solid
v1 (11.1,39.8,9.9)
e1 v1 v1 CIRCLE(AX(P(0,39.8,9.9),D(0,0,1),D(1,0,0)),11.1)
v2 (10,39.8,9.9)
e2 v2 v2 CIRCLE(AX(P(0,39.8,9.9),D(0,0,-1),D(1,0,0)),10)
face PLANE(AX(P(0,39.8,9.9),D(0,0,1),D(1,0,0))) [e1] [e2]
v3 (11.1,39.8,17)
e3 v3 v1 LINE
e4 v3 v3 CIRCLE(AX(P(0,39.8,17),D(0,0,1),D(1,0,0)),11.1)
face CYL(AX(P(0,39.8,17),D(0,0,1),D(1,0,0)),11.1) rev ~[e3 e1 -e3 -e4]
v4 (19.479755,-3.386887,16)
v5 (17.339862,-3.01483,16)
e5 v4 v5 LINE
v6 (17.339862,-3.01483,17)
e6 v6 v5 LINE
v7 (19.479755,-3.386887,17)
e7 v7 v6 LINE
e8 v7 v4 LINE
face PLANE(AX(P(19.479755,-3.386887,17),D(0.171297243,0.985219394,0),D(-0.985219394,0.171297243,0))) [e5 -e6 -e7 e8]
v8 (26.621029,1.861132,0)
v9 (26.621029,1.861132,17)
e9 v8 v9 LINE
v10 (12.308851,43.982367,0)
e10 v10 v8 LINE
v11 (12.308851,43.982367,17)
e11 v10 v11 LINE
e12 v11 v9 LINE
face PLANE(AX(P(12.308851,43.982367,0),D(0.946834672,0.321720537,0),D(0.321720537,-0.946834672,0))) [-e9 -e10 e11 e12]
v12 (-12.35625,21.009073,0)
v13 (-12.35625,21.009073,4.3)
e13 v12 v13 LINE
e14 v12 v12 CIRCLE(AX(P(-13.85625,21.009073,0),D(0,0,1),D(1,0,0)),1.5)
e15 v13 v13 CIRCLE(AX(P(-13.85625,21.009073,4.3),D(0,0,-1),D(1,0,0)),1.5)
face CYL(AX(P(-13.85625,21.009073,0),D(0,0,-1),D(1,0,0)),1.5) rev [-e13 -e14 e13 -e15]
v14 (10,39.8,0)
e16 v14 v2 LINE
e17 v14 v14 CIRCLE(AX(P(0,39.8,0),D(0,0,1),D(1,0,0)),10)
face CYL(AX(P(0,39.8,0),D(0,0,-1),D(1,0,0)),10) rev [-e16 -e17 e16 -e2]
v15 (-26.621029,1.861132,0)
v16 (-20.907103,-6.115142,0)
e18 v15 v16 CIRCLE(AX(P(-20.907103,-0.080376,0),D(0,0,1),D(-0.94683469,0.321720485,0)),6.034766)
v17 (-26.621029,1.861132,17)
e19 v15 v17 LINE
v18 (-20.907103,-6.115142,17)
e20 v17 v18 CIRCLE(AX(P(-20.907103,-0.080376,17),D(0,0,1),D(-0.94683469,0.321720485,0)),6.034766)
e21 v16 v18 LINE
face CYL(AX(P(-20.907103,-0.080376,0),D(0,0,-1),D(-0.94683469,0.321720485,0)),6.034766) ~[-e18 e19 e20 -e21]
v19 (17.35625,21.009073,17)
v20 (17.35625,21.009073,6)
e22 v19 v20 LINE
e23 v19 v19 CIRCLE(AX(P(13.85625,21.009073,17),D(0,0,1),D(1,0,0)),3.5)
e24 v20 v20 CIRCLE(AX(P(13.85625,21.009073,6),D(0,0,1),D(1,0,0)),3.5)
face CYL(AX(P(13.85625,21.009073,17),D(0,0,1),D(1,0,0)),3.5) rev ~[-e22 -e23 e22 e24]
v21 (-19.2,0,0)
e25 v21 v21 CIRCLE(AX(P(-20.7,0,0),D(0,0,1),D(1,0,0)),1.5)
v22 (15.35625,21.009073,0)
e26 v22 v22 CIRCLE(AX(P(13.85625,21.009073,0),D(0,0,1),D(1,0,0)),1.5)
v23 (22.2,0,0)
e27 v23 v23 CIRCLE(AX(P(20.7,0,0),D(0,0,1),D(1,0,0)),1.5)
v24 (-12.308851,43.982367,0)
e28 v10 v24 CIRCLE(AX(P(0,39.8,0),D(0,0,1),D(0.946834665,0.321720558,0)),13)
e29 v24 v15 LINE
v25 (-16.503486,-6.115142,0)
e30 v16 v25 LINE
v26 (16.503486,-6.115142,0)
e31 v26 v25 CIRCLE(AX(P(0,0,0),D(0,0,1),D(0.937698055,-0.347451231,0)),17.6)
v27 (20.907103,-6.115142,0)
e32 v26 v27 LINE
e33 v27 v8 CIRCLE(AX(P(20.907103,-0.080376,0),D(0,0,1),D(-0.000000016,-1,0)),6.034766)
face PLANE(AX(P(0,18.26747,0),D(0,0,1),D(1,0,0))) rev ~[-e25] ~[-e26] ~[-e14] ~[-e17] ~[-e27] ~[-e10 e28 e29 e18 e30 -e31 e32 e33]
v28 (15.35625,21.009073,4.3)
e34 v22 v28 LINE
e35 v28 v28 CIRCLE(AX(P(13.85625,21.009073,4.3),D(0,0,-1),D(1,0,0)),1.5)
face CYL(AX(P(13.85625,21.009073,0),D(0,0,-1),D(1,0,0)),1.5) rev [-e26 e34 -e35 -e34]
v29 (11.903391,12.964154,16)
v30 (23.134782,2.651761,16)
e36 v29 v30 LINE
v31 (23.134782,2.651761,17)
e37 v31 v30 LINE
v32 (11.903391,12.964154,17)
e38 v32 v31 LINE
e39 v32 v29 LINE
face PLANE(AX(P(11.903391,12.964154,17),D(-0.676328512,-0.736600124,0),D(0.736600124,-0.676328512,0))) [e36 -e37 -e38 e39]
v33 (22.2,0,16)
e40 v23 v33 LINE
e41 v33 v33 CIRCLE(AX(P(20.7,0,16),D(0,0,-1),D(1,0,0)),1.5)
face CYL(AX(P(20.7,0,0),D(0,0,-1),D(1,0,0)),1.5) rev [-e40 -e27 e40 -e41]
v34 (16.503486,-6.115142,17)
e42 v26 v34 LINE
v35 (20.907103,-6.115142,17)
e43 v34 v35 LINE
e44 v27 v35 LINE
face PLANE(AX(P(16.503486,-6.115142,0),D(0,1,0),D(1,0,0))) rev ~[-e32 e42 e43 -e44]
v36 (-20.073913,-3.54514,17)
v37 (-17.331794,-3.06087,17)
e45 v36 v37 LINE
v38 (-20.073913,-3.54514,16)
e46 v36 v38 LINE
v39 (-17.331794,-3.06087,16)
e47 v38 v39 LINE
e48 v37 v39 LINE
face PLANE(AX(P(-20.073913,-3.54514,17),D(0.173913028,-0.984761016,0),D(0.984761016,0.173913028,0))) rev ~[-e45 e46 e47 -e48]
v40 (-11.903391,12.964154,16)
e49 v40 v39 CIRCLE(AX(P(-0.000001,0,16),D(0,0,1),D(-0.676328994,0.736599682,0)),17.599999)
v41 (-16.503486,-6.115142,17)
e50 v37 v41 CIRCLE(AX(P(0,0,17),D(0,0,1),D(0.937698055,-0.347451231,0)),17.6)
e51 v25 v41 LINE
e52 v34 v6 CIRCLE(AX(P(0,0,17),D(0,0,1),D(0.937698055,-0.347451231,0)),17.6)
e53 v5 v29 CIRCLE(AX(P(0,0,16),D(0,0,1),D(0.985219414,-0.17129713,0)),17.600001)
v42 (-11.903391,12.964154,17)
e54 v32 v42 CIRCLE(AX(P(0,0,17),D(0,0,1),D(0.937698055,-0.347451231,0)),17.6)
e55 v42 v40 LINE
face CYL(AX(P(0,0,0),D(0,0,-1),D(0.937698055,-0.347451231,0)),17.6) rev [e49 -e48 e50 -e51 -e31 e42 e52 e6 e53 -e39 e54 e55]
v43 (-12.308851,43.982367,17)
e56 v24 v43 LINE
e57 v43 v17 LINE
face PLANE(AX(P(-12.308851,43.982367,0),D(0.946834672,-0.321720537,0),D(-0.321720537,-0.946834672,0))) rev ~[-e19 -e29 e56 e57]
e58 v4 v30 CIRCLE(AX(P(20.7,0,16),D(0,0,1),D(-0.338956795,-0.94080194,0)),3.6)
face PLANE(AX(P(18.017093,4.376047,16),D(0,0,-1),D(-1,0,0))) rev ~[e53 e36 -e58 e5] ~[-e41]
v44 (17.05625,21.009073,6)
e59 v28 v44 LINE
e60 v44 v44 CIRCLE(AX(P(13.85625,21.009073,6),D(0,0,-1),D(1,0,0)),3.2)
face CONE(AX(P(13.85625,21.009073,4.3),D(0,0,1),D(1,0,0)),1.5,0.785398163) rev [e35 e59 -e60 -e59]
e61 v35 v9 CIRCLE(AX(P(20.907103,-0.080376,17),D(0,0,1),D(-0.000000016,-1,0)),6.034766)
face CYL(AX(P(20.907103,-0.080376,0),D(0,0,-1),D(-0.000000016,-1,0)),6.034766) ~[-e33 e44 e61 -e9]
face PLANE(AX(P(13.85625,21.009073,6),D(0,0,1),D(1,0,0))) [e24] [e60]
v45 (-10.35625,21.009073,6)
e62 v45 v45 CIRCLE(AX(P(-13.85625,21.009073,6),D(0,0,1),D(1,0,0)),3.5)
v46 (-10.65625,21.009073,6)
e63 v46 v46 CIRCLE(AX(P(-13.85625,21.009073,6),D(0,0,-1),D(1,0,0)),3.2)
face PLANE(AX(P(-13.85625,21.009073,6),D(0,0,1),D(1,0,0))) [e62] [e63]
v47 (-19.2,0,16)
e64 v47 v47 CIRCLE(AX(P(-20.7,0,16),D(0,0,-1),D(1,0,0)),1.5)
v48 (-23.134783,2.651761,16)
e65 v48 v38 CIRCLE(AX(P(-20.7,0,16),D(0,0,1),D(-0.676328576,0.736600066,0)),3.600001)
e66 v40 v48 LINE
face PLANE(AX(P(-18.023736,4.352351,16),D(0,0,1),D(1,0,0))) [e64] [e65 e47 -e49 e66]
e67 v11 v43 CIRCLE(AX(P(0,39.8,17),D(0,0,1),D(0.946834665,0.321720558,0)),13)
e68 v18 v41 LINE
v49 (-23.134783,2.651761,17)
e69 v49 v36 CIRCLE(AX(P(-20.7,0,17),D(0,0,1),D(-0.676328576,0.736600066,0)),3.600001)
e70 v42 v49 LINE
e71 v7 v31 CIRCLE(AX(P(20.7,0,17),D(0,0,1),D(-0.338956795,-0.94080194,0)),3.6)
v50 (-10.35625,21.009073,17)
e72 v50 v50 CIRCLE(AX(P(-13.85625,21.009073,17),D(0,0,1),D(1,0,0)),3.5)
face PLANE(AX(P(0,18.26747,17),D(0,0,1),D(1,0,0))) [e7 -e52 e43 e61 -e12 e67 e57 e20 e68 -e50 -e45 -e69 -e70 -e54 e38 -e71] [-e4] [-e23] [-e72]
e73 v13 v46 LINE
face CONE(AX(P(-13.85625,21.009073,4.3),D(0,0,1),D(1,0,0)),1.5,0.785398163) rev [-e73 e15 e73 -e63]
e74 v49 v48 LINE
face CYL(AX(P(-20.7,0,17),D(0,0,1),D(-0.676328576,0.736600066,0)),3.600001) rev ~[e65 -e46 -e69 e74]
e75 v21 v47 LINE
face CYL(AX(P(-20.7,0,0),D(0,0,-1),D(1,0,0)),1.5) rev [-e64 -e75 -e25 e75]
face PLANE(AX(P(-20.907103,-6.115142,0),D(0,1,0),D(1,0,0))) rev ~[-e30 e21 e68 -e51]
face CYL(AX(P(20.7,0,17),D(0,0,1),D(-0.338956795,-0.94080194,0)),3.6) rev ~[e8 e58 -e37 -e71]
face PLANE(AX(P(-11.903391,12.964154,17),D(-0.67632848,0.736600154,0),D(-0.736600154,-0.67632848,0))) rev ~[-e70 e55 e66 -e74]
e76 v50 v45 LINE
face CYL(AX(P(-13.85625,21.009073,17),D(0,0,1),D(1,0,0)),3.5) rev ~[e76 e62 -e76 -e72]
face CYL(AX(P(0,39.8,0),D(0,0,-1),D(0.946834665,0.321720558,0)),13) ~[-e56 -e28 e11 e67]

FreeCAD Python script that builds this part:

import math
import FreeCAD as App
import Part
import Sketcher
Q = App.Units.Quantity


def edges_at(feature, points):
    """Names of the edges that pass closest to the given points."""
    edges = feature.Shape.Edges
    near = lambda p: min(range(len(edges)), key=lambda i: edges[i].distToShape(Part.Vertex(*p))[0])
    return sorted({f"Edge{near(p) + 1}" for p in points})

doc = App.newDocument("Part")
body = doc.addObject("PartDesign::Body", "Body")

# Sketch on XY plane
sketch1 = body.newObject("Sketcher::SketchObject", "Sketch")
sketch1.AttachmentSupport = (doc.getObject("XY_Plane"), [""])
sketch1.MapMode = "FlatFace"
sketch1.addGeometry([
    Part.LineSegment(App.Vector(-12.3, 44, 0), App.Vector(-26.6, 1.9, 0)),  # 0
    Part.ArcOfCircle(Part.Circle(App.Vector(-20.9, -0.1, 0), App.Vector(0, 0, 1), 6), math.radians(161), math.radians(270)),  # 1
    Part.LineSegment(App.Vector(-20.9, -6.1, 0), App.Vector(-16.5, -6.1, 0)),  # 2
    Part.ArcOfCircle(Part.Circle(App.Vector(0, 0, 0), App.Vector(0, 0, 1), 17.6), math.radians(-20), math.radians(200)),  # 3
    Part.LineSegment(App.Vector(16.5, -6.1, 0), App.Vector(20.9, -6.1, 0)),  # 4
    Part.ArcOfCircle(Part.Circle(App.Vector(20.9, -0.1, 0), App.Vector(0, 0, 1), 6), math.radians(-90), math.radians(19)),  # 5
    Part.LineSegment(App.Vector(26.6, 1.9, 0), App.Vector(12.3, 44, 0)),  # 6
    Part.ArcOfCircle(Part.Circle(App.Vector(0, 39.8, 0), App.Vector(0, 0, 1), 13), math.radians(19), math.radians(161)),  # 7
    Part.Circle(App.Vector(-20.7, 0, 0), App.Vector(0, 0, 1), 1.5),  # 8
    Part.Circle(App.Vector(-13.9, 21, 0), App.Vector(0, 0, 1), 1.5),  # 9
    Part.Circle(App.Vector(20.7, 0, 0), App.Vector(0, 0, 1), 1.5),  # 10
    Part.Circle(App.Vector(13.9, 21, 0), App.Vector(0, 0, 1), 1.5),  # 11
    Part.Circle(App.Vector(0, 39.8, 0), App.Vector(0, 0, 1), 10),  # 12
], False)
sketch1.addConstraint([
    Sketcher.Constraint("Tangent", 0, 2, 1, 1),
    Sketcher.Constraint("Tangent", 1, 2, 2, 1),
    Sketcher.Constraint("Coincident", 2, 2, 3, 2),
    Sketcher.Constraint("Coincident", 3, 1, 4, 1),
    Sketcher.Constraint("Tangent", 4, 2, 5, 1),
    Sketcher.Constraint("Tangent", 5, 2, 6, 1),
    Sketcher.Constraint("Tangent", 6, 2, 7, 1),
    Sketcher.Constraint("Tangent", 7, 2, 0, 1),
    Sketcher.Constraint("Horizontal", 2),
    Sketcher.Constraint("Horizontal", 4),
    Sketcher.Constraint("Coincident", 3, 3, -1, 1),
    Sketcher.Constraint("Coincident", 12, 3, 7, 3),
    Sketcher.Constraint("Equal", 1, 5),
    Sketcher.Constraint("Equal", 8, 9),
    Sketcher.Constraint("Equal", 9, 10),
    Sketcher.Constraint("Equal", 10, 11),
    Sketcher.Constraint("Symmetric", 8, 3, 10, 3, -1, 1),
    Sketcher.Constraint("Symmetric", 1, 3, 5, 3, -2),
    Sketcher.Constraint("Symmetric", 9, 3, 11, 3, -2),
    Sketcher.Constraint("PointOnObject", 7, 3, -2),
    Sketcher.Constraint("PointOnObject", 8, 3, -1),
    Sketcher.Constraint("Diameter", 8, Q("3 mm")),
    Sketcher.Constraint("Diameter", 12, Q("20 mm")),
    Sketcher.Constraint("Radius", 7, Q("13 mm")),
    Sketcher.Constraint("Radius", 3, Q("17.6 mm")),
    Sketcher.Constraint("DistanceY", -1, 1, 7, 3, Q("39.8 mm")),
    Sketcher.Constraint("DistanceX", 8, 3, -1, 1, Q("20.7 mm")),
    Sketcher.Constraint("Radius", 1, Q("6.034766 mm")),
    Sketcher.Constraint("DistanceX", 9, 3, 11, 3, Q("27.7125 mm")),
    Sketcher.Constraint("DistanceX", 6, 2, 11, 3, Q("1.547399 mm")),
    Sketcher.Constraint("DistanceX", 2, 1, 2, 2, Q("4.403617 mm")),
    Sketcher.Constraint("DistanceY", 1, 3, 9, 3, Q("21.089449 mm")),
])
pad1 = body.newObject("PartDesign::Pad", "Pad")
pad1.Profile = sketch1
pad1.Length = 17

# Sketch on XY plane
sketch2 = body.newObject("Sketcher::SketchObject", "Sketch001")
sketch2.AttachmentSupport = (doc.getObject("XY_Plane"), [""])
sketch2.MapMode = "FlatFace"
sketch2.AttachmentOffset = App.Placement(App.Vector(0, 0, 17), App.Rotation())
sketch2.addGeometry(Part.Circle(App.Vector(0, 40, 0), App.Vector(0, 0, 1), 11), False)
sketch2.addConstraint([
    Sketcher.Constraint("PointOnObject", 0, 3, -2),
    Sketcher.Constraint("Diameter", 0, Q("22.2 mm")),
    Sketcher.Constraint("DistanceY", -1, 1, 0, 3, Q("39.8 mm")),
])
pocket1 = body.newObject("PartDesign::Pocket", "Pocket")
pocket1.Profile = sketch2
pocket1.Length = 7.1

# Sketch on XY plane
sketch3 = body.newObject("Sketcher::SketchObject", "Sketch002")
sketch3.AttachmentSupport = (doc.getObject("XY_Plane"), [""])
sketch3.MapMode = "FlatFace"
sketch3.AttachmentOffset = App.Placement(App.Vector(0, 0, 17), App.Rotation())
sketch3.addGeometry([
    Part.Circle(App.Vector(-13.9, 21, 0), App.Vector(0, 0, 1), 3.5),
    Part.Circle(App.Vector(13.9, 21, 0), App.Vector(0, 0, 1), 3.5),
], False)
sketch3.addConstraint([
    Sketcher.Constraint("Equal", 0, 1),
    Sketcher.Constraint("Symmetric", 0, 3, 1, 3, -2),
    Sketcher.Constraint("Diameter", 0, Q("7 mm")),
    Sketcher.Constraint("DistanceX", 0, 3, 1, 3, Q("27.7125 mm")),
    Sketcher.Constraint("DistanceY", -1, 1, 0, 3, Q("21.009073 mm")),
])
pocket2 = body.newObject("PartDesign::Pocket", "Pocket001")
pocket2.Profile = sketch3
pocket2.Length = 11
doc.recompute()

chamfer = body.newObject("PartDesign::Chamfer", "Chamfer")
chamfer.Base = (pocket2, edges_at(pocket2, [(12.356, 21.009, 6), (-15.356, 21.009, 6)]))
chamfer.Size = 1.7

# Sketch on XY plane
sketch4 = body.newObject("Sketcher::SketchObject", "Sketch003")
sketch4.AttachmentSupport = (doc.getObject("XY_Plane"), [""])
sketch4.MapMode = "FlatFace"
sketch4.AttachmentOffset = App.Placement(App.Vector(0, 0, 17), App.Rotation())
sketch4.addGeometry([
    Part.LineSegment(App.Vector(-11.903391, 12.964154, 0), App.Vector(-23.134783, 2.651761, 0)),  # 0
    Part.ArcOfCircle(Part.Circle(App.Vector(-20.7, 0, 0), App.Vector(0, 0, 1), 3.600001), math.radians(132.557407), math.radians(280.015405)),  # 1
    Part.LineSegment(App.Vector(-20.073913, -3.54514, 0), App.Vector(-17.331794, -3.06087, 0)),  # 2
    Part.ArcOfCircle(Part.Circle(App.Vector(-0.000001, 0, 0), App.Vector(0, 0, 1), 17.599999), math.radians(132.557439), math.radians(190.015414)),  # 3
    Part.LineSegment(App.Vector(23.134782, 2.651761, 0), App.Vector(11.903391, 12.964154, 0)),  # 4
    Part.ArcOfCircle(Part.Circle(App.Vector(0, 0, 0), App.Vector(0, 0, 1), 17.600001), math.radians(-9.863245), math.radians(47.442558)),  # 5
    Part.LineSegment(App.Vector(17.339862, -3.01483, 0), App.Vector(19.479755, -3.386887, 0)),  # 6
    Part.ArcOfCircle(Part.Circle(App.Vector(20.7, 0, 0), App.Vector(0, 0, 1), 3.6), math.radians(-109.813329), math.radians(47.442604)),  # 7
], False)
sketch4.addConstraint([
    Sketcher.Constraint("Coincident", 0, 2, 1, 1),
    Sketcher.Constraint("Coincident", 1, 2, 2, 1),
    Sketcher.Constraint("Coincident", 2, 2, 3, 2),
    Sketcher.Constraint("Coincident", 3, 1, 0, 1),
    Sketcher.Constraint("Coincident", 4, 2, 5, 2),
    Sketcher.Constraint("Coincident", 5, 1, 6, 1),
    Sketcher.Constraint("Coincident", 6, 2, 7, 1),
    Sketcher.Constraint("Coincident", 7, 2, 4, 1),
    Sketcher.Constraint("Coincident", 3, 3, -1, 1),
    Sketcher.Constraint("Coincident", 5, 3, -1, 1),
    Sketcher.Constraint("PointOnObject", 1, 3, -1),
    Sketcher.Constraint("PointOnObject", 7, 3, -1),
    Sketcher.Constraint("Radius", 1, Q("3.600001 mm")),
    Sketcher.Constraint("Radius", 3, Q("17.599999 mm")),
    Sketcher.Constraint("Radius", 5, Q("17.600001 mm")),
    Sketcher.Constraint("Radius", 7, Q("3.6 mm")),
    Sketcher.Constraint("DistanceX", 1, 3, -1, 1, Q("20.7 mm")),
    Sketcher.Constraint("DistanceX", -1, 1, 7, 3, Q("20.7 mm")),
    Sketcher.Constraint("DistanceY", 1, 2, 0, 2, Q("6.196901 mm")),
    Sketcher.Constraint("Distance", 0, Q("15.24761 mm")),
    Sketcher.Constraint("Distance", 4, Q("15.247609 mm")),
    Sketcher.Constraint("DistanceY", -1, 1, 0, 2, Q("2.651761 mm")),
    Sketcher.Constraint("DistanceY", 2, 2, -1, 1, Q("3.06087 mm")),
    Sketcher.Constraint("DistanceX", -1, 1, 4, 2, Q("11.903391 mm")),
    Sketcher.Constraint("DistanceX", -1, 1, 5, 1, Q("17.339862 mm")),
    Sketcher.Constraint("DistanceY", 6, 2, 4, 2, Q("16.351041 mm")),
])
pocket3 = body.newObject("PartDesign::Pocket", "Pocket002")
pocket3.Profile = sketch4
pocket3.Length = 1

doc.recompute()
